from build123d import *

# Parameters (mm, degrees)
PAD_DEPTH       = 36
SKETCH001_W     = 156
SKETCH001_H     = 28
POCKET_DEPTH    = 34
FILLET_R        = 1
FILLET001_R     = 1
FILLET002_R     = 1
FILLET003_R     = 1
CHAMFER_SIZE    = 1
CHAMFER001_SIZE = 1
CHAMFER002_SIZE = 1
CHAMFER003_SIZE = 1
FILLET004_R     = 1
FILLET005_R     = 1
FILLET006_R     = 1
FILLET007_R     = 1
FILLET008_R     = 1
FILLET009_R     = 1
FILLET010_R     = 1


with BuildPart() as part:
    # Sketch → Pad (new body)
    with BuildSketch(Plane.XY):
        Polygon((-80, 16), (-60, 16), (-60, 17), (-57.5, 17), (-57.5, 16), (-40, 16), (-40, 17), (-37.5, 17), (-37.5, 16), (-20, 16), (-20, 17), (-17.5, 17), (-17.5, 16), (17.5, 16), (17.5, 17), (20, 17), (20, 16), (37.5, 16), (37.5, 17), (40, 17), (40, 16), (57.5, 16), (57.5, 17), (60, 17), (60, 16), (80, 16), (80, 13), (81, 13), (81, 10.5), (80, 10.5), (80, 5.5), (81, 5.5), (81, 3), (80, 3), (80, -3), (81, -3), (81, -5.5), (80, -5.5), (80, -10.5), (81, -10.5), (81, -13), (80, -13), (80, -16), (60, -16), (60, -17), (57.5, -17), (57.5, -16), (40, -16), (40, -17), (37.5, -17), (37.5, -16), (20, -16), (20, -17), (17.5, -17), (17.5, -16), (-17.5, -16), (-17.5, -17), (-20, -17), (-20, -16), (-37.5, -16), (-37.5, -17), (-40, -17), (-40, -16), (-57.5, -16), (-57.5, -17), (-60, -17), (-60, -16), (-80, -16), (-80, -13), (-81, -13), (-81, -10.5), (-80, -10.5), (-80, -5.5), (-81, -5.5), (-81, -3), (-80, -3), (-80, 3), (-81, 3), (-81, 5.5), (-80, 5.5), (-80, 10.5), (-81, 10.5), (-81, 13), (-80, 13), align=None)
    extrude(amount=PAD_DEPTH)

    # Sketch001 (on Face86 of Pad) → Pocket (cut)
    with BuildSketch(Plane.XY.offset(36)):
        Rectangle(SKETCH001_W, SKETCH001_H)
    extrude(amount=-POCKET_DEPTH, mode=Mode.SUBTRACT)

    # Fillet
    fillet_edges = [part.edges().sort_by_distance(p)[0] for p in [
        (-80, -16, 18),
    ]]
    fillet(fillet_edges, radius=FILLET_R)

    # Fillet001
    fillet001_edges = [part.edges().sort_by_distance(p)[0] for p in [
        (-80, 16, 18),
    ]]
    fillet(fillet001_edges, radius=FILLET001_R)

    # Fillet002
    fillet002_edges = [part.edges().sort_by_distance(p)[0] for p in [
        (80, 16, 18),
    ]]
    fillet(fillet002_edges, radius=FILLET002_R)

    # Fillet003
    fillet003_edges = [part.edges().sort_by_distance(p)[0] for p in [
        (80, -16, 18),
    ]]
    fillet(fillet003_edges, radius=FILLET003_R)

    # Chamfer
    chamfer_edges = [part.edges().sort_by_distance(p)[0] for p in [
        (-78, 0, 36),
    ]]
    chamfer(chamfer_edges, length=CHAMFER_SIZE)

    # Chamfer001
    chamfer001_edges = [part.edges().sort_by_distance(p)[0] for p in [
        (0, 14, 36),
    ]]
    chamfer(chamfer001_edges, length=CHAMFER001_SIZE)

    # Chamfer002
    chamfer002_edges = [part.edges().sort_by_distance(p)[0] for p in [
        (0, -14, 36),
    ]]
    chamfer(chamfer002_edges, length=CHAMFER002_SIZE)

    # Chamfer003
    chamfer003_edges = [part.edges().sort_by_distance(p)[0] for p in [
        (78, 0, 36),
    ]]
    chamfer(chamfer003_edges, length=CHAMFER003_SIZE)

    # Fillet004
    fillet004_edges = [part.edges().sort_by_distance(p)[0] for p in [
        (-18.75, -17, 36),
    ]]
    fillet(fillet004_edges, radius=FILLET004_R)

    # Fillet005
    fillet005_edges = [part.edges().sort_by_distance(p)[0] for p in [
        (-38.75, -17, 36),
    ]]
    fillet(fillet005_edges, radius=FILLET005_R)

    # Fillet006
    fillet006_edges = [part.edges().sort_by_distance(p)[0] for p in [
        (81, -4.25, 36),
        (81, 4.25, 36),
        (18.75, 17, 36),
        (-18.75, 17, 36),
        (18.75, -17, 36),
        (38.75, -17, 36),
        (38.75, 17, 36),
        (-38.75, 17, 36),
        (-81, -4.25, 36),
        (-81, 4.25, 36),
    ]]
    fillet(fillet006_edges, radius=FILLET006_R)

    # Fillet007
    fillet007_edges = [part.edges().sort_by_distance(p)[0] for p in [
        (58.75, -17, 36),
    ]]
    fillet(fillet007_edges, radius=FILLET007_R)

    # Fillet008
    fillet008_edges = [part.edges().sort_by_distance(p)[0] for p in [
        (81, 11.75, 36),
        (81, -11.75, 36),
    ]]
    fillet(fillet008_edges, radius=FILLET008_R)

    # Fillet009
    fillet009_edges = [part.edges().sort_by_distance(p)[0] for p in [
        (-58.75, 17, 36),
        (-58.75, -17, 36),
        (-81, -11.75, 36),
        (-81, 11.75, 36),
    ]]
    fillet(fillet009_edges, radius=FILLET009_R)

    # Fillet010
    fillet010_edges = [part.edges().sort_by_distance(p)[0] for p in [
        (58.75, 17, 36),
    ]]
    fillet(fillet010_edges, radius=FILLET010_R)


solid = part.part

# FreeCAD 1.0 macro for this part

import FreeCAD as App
import Part
import Sketcher
from FreeCAD import Vector
Q = App.Units.Quantity


def edges_at(feature, points):
    """Names of the edges that pass closest to the given points."""
    edges = feature.Shape.Edges
    near = lambda p: min(range(len(edges)), key=lambda i: edges[i].distToShape(Part.Vertex(*p))[0])
    return sorted({f"Edge{near(p) + 1}" for p in points})


def add_polygon(sketch, points):
    """Adds a closed chain of lines whose ends are joined by coincident constraints."""
    first, n = sketch.GeometryCount, len(points)
    for a, b in zip(points, points[1:] + points[:1]):
        sketch.addGeometry(Part.LineSegment(App.Vector(*a, 0), App.Vector(*b, 0)), False)
    for i in range(n):
        sketch.addConstraint(Sketcher.Constraint("Coincident", first + i, 2, first + (i + 1) % n, 1))

doc = App.newDocument("Part")
body = doc.addObject("PartDesign::Body", "Body")

# Sketch on XY plane
sketch1 = body.newObject("Sketcher::SketchObject", "Sketch")
sketch1.AttachmentSupport = (doc.getObject("XY_Plane"), [""])
sketch1.MapMode = "FlatFace"
add_polygon(sketch1, [(-60, 16), (-80, 16), (-80, 13), (-81, 13), (-81, 10.5), (-80, 10.5), (-80, 5.5), (-81, 5.5), (-81, 3), (-80, 3), (-80, -3), (-81, -3), (-81, -5.5), (-80, -5.5), (-80, -10.5), (-81, -10.5), (-81, -13), (-80, -13), (-80, -16), (-60, -16), (-60, -17), (-57.5, -17), (-57.5, -16), (-40, -16), (-40, -17), (-37.5, -17), (-37.5, -16), (-20, -16), (-20, -17), (-17.5, -17), (-17.5, -16), (17.5, -16), (17.5, -17), (20, -17), (20, -16), (37.5, -16), (37.5, -17), (40, -17), (40, -16), (57.5, -16), (57.5, -17), (60, -17), (60, -16), (80, -16), (80, -13), (81, -13), (81, -10.5), (80, -10.5), (80, -5.5), (81, -5.5), (81, -3), (80, -3), (80, 3), (81, 3), (81, 5.5), (80, 5.5), (80, 10.5), (81, 10.5), (81, 13), (80, 13), (80, 16), (60, 16), (60, 17), (57.5, 17), (57.5, 16), (40, 16), (40, 17), (37.5, 17), (37.5, 16), (20, 16), (20, 17), (17.5, 17), (17.5, 16), (-17.5, 16), (-17.5, 17), (-20, 17), (-20, 16), (-37.5, 16), (-37.5, 17), (-40, 17), (-40, 16), (-57.5, 16), (-57.5, 17), (-60, 17)])  # lines 0-83
sketch1.addConstraint(Sketcher.Constraint("Horizontal", 0))
sketch1.addConstraint(Sketcher.Constraint("Vertical", 1))
sketch1.addConstraint(Sketcher.Constraint("Horizontal", 2))
sketch1.addConstraint(Sketcher.Constraint("Vertical", 3))
sketch1.addConstraint(Sketcher.Constraint("Horizontal", 4))
sketch1.addConstraint(Sketcher.Constraint("Vertical", 5))
sketch1.addConstraint(Sketcher.Constraint("Horizontal", 6))
sketch1.addConstraint(Sketcher.Constraint("Vertical", 7))
sketch1.addConstraint(Sketcher.Constraint("Horizontal", 8))
sketch1.addConstraint(Sketcher.Constraint("Vertical", 9))
sketch1.addConstraint(Sketcher.Constraint("Horizontal", 10))
sketch1.addConstraint(Sketcher.Constraint("Vertical", 11))
sketch1.addConstraint(Sketcher.Constraint("Horizontal", 12))
sketch1.addConstraint(Sketcher.Constraint("Vertical", 13))
sketch1.addConstraint(Sketcher.Constraint("Horizontal", 14))
sketch1.addConstraint(Sketcher.Constraint("Vertical", 15))
sketch1.addConstraint(Sketcher.Constraint("Horizontal", 16))
sketch1.addConstraint(Sketcher.Constraint("Vertical", 17))
sketch1.addConstraint(Sketcher.Constraint("Horizontal", 18))
sketch1.addConstraint(Sketcher.Constraint("Vertical", 19))
sketch1.addConstraint(Sketcher.Constraint("Horizontal", 20))
sketch1.addConstraint(Sketcher.Constraint("Vertical", 21))
sketch1.addConstraint(Sketcher.Constraint("Horizontal", 22))
sketch1.addConstraint(Sketcher.Constraint("Vertical", 23))
sketch1.addConstraint(Sketcher.Constraint("Horizontal", 24))
sketch1.addConstraint(Sketcher.Constraint("Vertical", 25))
sketch1.addConstraint(Sketcher.Constraint("Horizontal", 26))
sketch1.addConstraint(Sketcher.Constraint("Vertical", 27))
sketch1.addConstraint(Sketcher.Constraint("Horizontal", 28))
sketch1.addConstraint(Sketcher.Constraint("Vertical", 29))
sketch1.addConstraint(Sketcher.Constraint("Horizontal", 30))
sketch1.addConstraint(Sketcher.Constraint("Vertical", 31))
sketch1.addConstraint(Sketcher.Constraint("Horizontal", 32))
sketch1.addConstraint(Sketcher.Constraint("Vertical", 33))
sketch1.addConstraint(Sketcher.Constraint("Horizontal", 34))
sketch1.addConstraint(Sketcher.Constraint("Vertical", 35))
sketch1.addConstraint(Sketcher.Constraint("Horizontal", 36))
sketch1.addConstraint(Sketcher.Constraint("Vertical", 37))
sketch1.addConstraint(Sketcher.Constraint("Horizontal", 38))
sketch1.addConstraint(Sketcher.Constraint("Vertical", 39))
sketch1.addConstraint(Sketcher.Constraint("Horizontal", 40))
sketch1.addConstraint(Sketcher.Constraint("Vertical", 41))
sketch1.addConstraint(Sketcher.Constraint("Horizontal", 42))
sketch1.addConstraint(Sketcher.Constraint("Vertical", 43))
sketch1.addConstraint(Sketcher.Constraint("Horizontal", 44))
sketch1.addConstraint(Sketcher.Constraint("Vertical", 45))
sketch1.addConstraint(Sketcher.Constraint("Horizontal", 46))
sketch1.addConstraint(Sketcher.Constraint("Vertical", 47))
sketch1.addConstraint(Sketcher.Constraint("Horizontal", 48))
sketch1.addConstraint(Sketcher.Constraint("Vertical", 49))
sketch1.addConstraint(Sketcher.Constraint("Horizontal", 50))
sketch1.addConstraint(Sketcher.Constraint("Vertical", 51))
sketch1.addConstraint(Sketcher.Constraint("Horizontal", 52))
sketch1.addConstraint(Sketcher.Constraint("Vertical", 53))
sketch1.addConstraint(Sketcher.Constraint("Horizontal", 54))
sketch1.addConstraint(Sketcher.Constraint("Vertical", 55))
sketch1.addConstraint(Sketcher.Constraint("Horizontal", 56))
sketch1.addConstraint(Sketcher.Constraint("Vertical", 57))
sketch1.addConstraint(Sketcher.Constraint("Horizontal", 58))
sketch1.addConstraint(Sketcher.Constraint("Vertical", 59))
sketch1.addConstraint(Sketcher.Constraint("Horizontal", 60))
sketch1.addConstraint(Sketcher.Constraint("Vertical", 61))
sketch1.addConstraint(Sketcher.Constraint("Horizontal", 62))
sketch1.addConstraint(Sketcher.Constraint("Vertical", 63))
sketch1.addConstraint(Sketcher.Constraint("Horizontal", 64))
sketch1.addConstraint(Sketcher.Constraint("Vertical", 65))
sketch1.addConstraint(Sketcher.Constraint("Horizontal", 66))
sketch1.addConstraint(Sketcher.Constraint("Vertical", 67))
sketch1.addConstraint(Sketcher.Constraint("Horizontal", 68))
sketch1.addConstraint(Sketcher.Constraint("Vertical", 69))
sketch1.addConstraint(Sketcher.Constraint("Horizontal", 70))
sketch1.addConstraint(Sketcher.Constraint("Vertical", 71))
sketch1.addConstraint(Sketcher.Constraint("Horizontal", 72))
sketch1.addConstraint(Sketcher.Constraint("Vertical", 73))
sketch1.addConstraint(Sketcher.Constraint("Horizontal", 74))
sketch1.addConstraint(Sketcher.Constraint("Vertical", 75))
sketch1.addConstraint(Sketcher.Constraint("Horizontal", 76))
sketch1.addConstraint(Sketcher.Constraint("Vertical", 77))
sketch1.addConstraint(Sketcher.Constraint("Horizontal", 78))
sketch1.addConstraint(Sketcher.Constraint("Vertical", 79))
sketch1.addConstraint(Sketcher.Constraint("Horizontal", 80))
sketch1.addConstraint(Sketcher.Constraint("Vertical", 81))
sketch1.addConstraint(Sketcher.Constraint("Horizontal", 82))
sketch1.addConstraint(Sketcher.Constraint("Vertical", 83))
sketch1.addConstraint(Sketcher.Constraint("Symmetric", 0, 2, 42, 2, -1, 1))
sketch1.addConstraint(Sketcher.Constraint("Symmetric", 2, 2, 44, 2, -1, 1))
sketch1.addConstraint(Sketcher.Constraint("Symmetric", 4, 2, 46, 2, -1, 1))
sketch1.addConstraint(Sketcher.Constraint("Symmetric", 6, 2, 48, 2, -1, 1))
sketch1.addConstraint(Sketcher.Constraint("Symmetric", 8, 2, 50, 2, -1, 1))
sketch1.addConstraint(Sketcher.Constraint("Symmetric", 10, 2, 52, 2, -1, 1))
sketch1.addConstraint(Sketcher.Constraint("Symmetric", 12, 2, 54, 2, -1, 1))
sketch1.addConstraint(Sketcher.Constraint("Symmetric", 14, 2, 56, 2, -1, 1))
sketch1.addConstraint(Sketcher.Constraint("Symmetric", 16, 2, 58, 2, -1, 1))
sketch1.addConstraint(Sketcher.Constraint("Symmetric", 18, 2, 60, 2, -1, 1))
sketch1.addConstraint(Sketcher.Constraint("Symmetric", 20, 2, 62, 2, -1, 1))
sketch1.addConstraint(Sketcher.Constraint("Symmetric", 22, 2, 64, 2, -1, 1))
sketch1.addConstraint(Sketcher.Constraint("Symmetric", 24, 2, 66, 2, -1, 1))
sketch1.addConstraint(Sketcher.Constraint("Symmetric", 26, 2, 68, 2, -1, 1))
sketch1.addConstraint(Sketcher.Constraint("Symmetric", 28, 2, 70, 2, -1, 1))
sketch1.addConstraint(Sketcher.Constraint("Symmetric", 30, 2, 72, 2, -1, 1))
sketch1.addConstraint(Sketcher.Constraint("Symmetric", 32, 2, 74, 2, -1, 1))
sketch1.addConstraint(Sketcher.Constraint("Symmetric", 34, 2, 76, 2, -1, 1))
sketch1.addConstraint(Sketcher.Constraint("Symmetric", 36, 2, 78, 2, -1, 1))
sketch1.addConstraint(Sketcher.Constraint("Symmetric", 38, 2, 80, 2, -1, 1))
sketch1.addConstraint(Sketcher.Constraint("Symmetric", 40, 2, 82, 2, -1, 1))
sketch1.addConstraint(Sketcher.Constraint("Symmetric", 28, 2, 31, 2, -2))
sketch1.addConstraint(Sketcher.Constraint("Symmetric", 26, 2, 33, 2, -2))
sketch1.addConstraint(Sketcher.Constraint("Symmetric", 24, 2, 35, 2, -2))
sketch1.addConstraint(Sketcher.Constraint("Symmetric", 22, 2, 37, 2, -2))
sketch1.addConstraint(Sketcher.Constraint("Symmetric", 20, 2, 39, 2, -2))
sketch1.addConstraint(Sketcher.Constraint("Symmetric", 18, 2, 41, 2, -2))
sketch1.addConstraint(Sketcher.Constraint("Symmetric", 16, 2, 43, 2, -2))
sketch1.addConstraint(Sketcher.Constraint("Symmetric", 14, 2, 45, 2, -2))
sketch1.addConstraint(Sketcher.Constraint("Symmetric", 12, 2, 47, 2, -2))
sketch1.addConstraint(Sketcher.Constraint("Symmetric", 10, 2, 49, 2, -2))
sketch1.addConstraint(Sketcher.Constraint("Horizontal", 18, 2, 21, 2))
sketch1.addConstraint(Sketcher.Constraint("Horizontal", 20, 2, 23, 2))
sketch1.addConstraint(Sketcher.Constraint("Horizontal", 22, 2, 25, 2))
sketch1.addConstraint(Sketcher.Constraint("Horizontal", 24, 2, 27, 2))
sketch1.addConstraint(Sketcher.Constraint("Horizontal", 26, 2, 29, 2))
sketch1.addConstraint(Sketcher.Constraint("Vertical", 1, 2, 4, 2))
sketch1.addConstraint(Sketcher.Constraint("Vertical", 3, 2, 6, 2))
sketch1.addConstraint(Sketcher.Constraint("Vertical", 5, 2, 8, 2))
sketch1.addConstraint(Sketcher.Constraint("Equal", 20, 24))
sketch1.addConstraint(Sketcher.Constraint("Equal", 22, 26))
sketch1.addConstraint(Sketcher.Constraint("Equal", 24, 28))
sketch1.addConstraint(Sketcher.Constraint("Equal", 82, 3))
sketch1.addConstraint(Sketcher.Constraint("Equal", 3, 7))
sketch1.addConstraint(Sketcher.Constraint("Equal", 58, 19))
sketch1.addConstraint(Sketcher.Constraint("DistanceX", 0, 2, 0, 1, Q("20 mm")))
sketch1.addConstraint(Sketcher.Constraint("DistanceX", 2, 2, 2, 1, Q("1 mm")))
sketch1.addConstraint(Sketcher.Constraint("DistanceX", 30, 1, 30, 2, Q("35 mm")))
sketch1.addConstraint(Sketcher.Constraint("DistanceY", 1, 2, 1, 1, Q("3 mm")))
sketch1.addConstraint(Sketcher.Constraint("DistanceY", 5, 2, 5, 1, Q("5 mm")))
sketch1.addConstraint(Sketcher.Constraint("DistanceY", 9, 2, 9, 1, Q("6 mm")))
sketch1.addConstraint(Sketcher.Constraint("DistanceX", 20, 1, 20, 2, Q("2.5 mm")))
sketch1.addConstraint(Sketcher.Constraint("DistanceX", 22, 1, 22, 2, Q("17.5 mm")))
pad1 = body.newObject("PartDesign::Pad", "Pad")
pad1.Profile = sketch1
pad1.Length = 36

# Sketch on XY plane
sketch2 = body.newObject("Sketcher::SketchObject", "Sketch001")
sketch2.AttachmentSupport = (doc.getObject("XY_Plane"), [""])
sketch2.MapMode = "FlatFace"
sketch2.AttachmentOffset = App.Placement(Vector(0, 0, 36), App.Rotation())
add_polygon(sketch2, [(-78, 14), (-78, -14), (78, -14), (78, 14)])  # lines 0-3
sketch2.addConstraint(Sketcher.Constraint("Vertical", 0))
sketch2.addConstraint(Sketcher.Constraint("Horizontal", 1))
sketch2.addConstraint(Sketcher.Constraint("Vertical", 2))
sketch2.addConstraint(Sketcher.Constraint("Horizontal", 3))
sketch2.addConstraint(Sketcher.Constraint("Symmetric", 0, 2, 2, 2, -1, 1))
sketch2.addConstraint(Sketcher.Constraint("DistanceX", 1, 1, 1, 2, Q("156 mm")))
sketch2.addConstraint(Sketcher.Constraint("DistanceY", 0, 2, 0, 1, Q("28 mm")))
pocket1 = body.newObject("PartDesign::Pocket", "Pocket")
pocket1.Profile = sketch2
pocket1.Length = 34
doc.recompute()

fillet = body.newObject("PartDesign::Fillet", "Fillet")
fillet.Base = (pocket1, edges_at(pocket1, [(-80, -16, 18)]))
fillet.Radius = 1
doc.recompute()

fillet2 = body.newObject("PartDesign::Fillet", "Fillet001")
fillet2.Base = (fillet, edges_at(fillet, [(-80, 16, 18)]))
fillet2.Radius = 1
doc.recompute()

fillet3 = body.newObject("PartDesign::Fillet", "Fillet002")
fillet3.Base = (fillet2, edges_at(fillet2, [(80, 16, 18)]))
fillet3.Radius = 1
doc.recompute()

fillet4 = body.newObject("PartDesign::Fillet", "Fillet003")
fillet4.Base = (fillet3, edges_at(fillet3, [(80, -16, 18)]))
fillet4.Radius = 1
doc.recompute()

chamfer = body.newObject("PartDesign::Chamfer", "Chamfer")
chamfer.Base = (fillet4, edges_at(fillet4, [(-78, 0, 36)]))
chamfer.Size = 1
doc.recompute()

chamfer2 = body.newObject("PartDesign::Chamfer", "Chamfer001")
chamfer2.Base = (chamfer, edges_at(chamfer, [(-0.5, 14, 36)]))
chamfer2.Size = 1
doc.recompute()

chamfer3 = body.newObject("PartDesign::Chamfer", "Chamfer002")
chamfer3.Base = (chamfer2, edges_at(chamfer2, [(-0.5, -14, 36)]))
chamfer3.Size = 1
doc.recompute()

chamfer4 = body.newObject("PartDesign::Chamfer", "Chamfer003")
chamfer4.Base = (chamfer3, edges_at(chamfer3, [(78, 0, 36)]))
chamfer4.Size = 1
doc.recompute()

fillet5 = body.newObject("PartDesign::Fillet", "Fillet004")
fillet5.Base = (chamfer4, edges_at(chamfer4, [(-18.75, -17, 36)]))
fillet5.Radius = 1
doc.recompute()

fillet6 = body.newObject("PartDesign::Fillet", "Fillet005")
fillet6.Base = (fillet5, edges_at(fillet5, [(-38.75, -17, 36)]))
fillet6.Radius = 1
doc.recompute()

fillet7 = body.newObject("PartDesign::Fillet", "Fillet006")
fillet7.Base = (fillet6, edges_at(fillet6, [
    (81, -4.25, 36),
    (81, 4.25, 36),
    (18.75, 17, 36),
    (-18.75, 17, 36),
    (18.75, -17, 36),
    (38.75, -17, 36),
    (38.75, 17, 36),
    (-38.75, 17, 36),
    (-81, -4.25, 36),
    (-81, 4.25, 36),
]))
fillet7.Radius = 1
doc.recompute()

fillet8 = body.newObject("PartDesign::Fillet", "Fillet007")
fillet8.Base = (fillet7, edges_at(fillet7, [(58.75, -17, 36)]))
fillet8.Radius = 1
doc.recompute()

fillet9 = body.newObject("PartDesign::Fillet", "Fillet008")
fillet9.Base = (fillet8, edges_at(fillet8, [(81, 11.75, 36), (81, -11.75, 36)]))
fillet9.Radius = 1
doc.recompute()

fillet10 = body.newObject("PartDesign::Fillet", "Fillet009")
fillet10.Base = (fillet9, edges_at(fillet9, [
    (-58.75, 17, 36),
    (-58.75, -17, 36),
    (-81, -11.75, 36),
    (-81, 11.75, 36),
]))
fillet10.Radius = 1
doc.recompute()

fillet11 = body.newObject("PartDesign::Fillet", "Fillet010")
fillet11.Base = (fillet10, edges_at(fillet10, [(58.75, 17, 36)]))
fillet11.Radius = 1

doc.recompute()
